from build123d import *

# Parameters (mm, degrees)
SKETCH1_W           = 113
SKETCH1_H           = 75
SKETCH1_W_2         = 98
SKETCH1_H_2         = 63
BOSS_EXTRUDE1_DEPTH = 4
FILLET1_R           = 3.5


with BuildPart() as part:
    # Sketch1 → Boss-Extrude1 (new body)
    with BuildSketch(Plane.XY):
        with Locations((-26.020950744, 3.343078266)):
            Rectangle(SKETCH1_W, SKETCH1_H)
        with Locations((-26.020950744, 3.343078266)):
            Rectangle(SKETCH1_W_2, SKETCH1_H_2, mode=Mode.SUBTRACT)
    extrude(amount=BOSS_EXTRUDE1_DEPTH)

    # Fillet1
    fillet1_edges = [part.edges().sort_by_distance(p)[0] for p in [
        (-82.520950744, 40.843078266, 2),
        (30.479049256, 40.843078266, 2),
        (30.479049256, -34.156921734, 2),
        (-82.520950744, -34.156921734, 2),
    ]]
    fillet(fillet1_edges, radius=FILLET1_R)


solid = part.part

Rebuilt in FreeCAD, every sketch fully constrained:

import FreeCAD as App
import Part
import Sketcher
from FreeCAD import Vector


def edges_at(feature, points):
    """Names of the edges that pass closest to the given points."""
    edges = feature.Shape.Edges
    near = lambda p: min(range(len(edges)), key=lambda i: edges[i].distToShape(Part.Vertex(*p))[0])
    return sorted({f"Edge{near(p) + 1}" for p in points})

doc = App.newDocument("Part")
body = doc.addObject("PartDesign::Body", "Body")

# Sketch on XY plane
sketch1 = body.newObject("Sketcher::SketchObject", "Sketch")
sketch1.AttachmentSupport = (doc.getObject("XY_Plane"), [""])
sketch1.MapMode = "FlatFace"
sketch1.addGeometry(Part.LineSegment(Vector(-82.520951, 40.843078, 0), Vector(-82.520951, -34.156922, 0)), False)
sketch1.addGeometry(Part.LineSegment(Vector(-82.520951, -34.156922, 0), Vector(30.479049, -34.156922, 0)), False)
sketch1.addGeometry(Part.LineSegment(Vector(30.479049, -34.156922, 0), Vector(30.479049, 40.843078, 0)), False)
sketch1.addGeometry(Part.LineSegment(Vector(30.479049, 40.843078, 0), Vector(-82.520951, 40.843078, 0)), False)
sketch1.addGeometry(Part.LineSegment(Vector(22.979049, -28.156922, 0), Vector(-75.020951, -28.156922, 0)), False)
sketch1.addGeometry(Part.LineSegment(Vector(-75.020951, -28.156922, 0), Vector(-75.020951, 34.843078, 0)), False)
sketch1.addGeometry(Part.LineSegment(Vector(-75.020951, 34.843078, 0), Vector(22.979049, 34.843078, 0)), False)
sketch1.addGeometry(Part.LineSegment(Vector(22.979049, 34.843078, 0), Vector(22.979049, -28.156922, 0)), False)
sketch1.addConstraint(Sketcher.Constraint("Coincident", 0, 2, 1, 1))
sketch1.addConstraint(Sketcher.Constraint("Coincident", 1, 2, 2, 1))
sketch1.addConstraint(Sketcher.Constraint("Coincident", 2, 2, 3, 1))
sketch1.addConstraint(Sketcher.Constraint("Coincident", 3, 2, 0, 1))
sketch1.addConstraint(Sketcher.Constraint("Coincident", 4, 2, 5, 1))
sketch1.addConstraint(Sketcher.Constraint("Coincident", 5, 2, 6, 1))
sketch1.addConstraint(Sketcher.Constraint("Coincident", 6, 2, 7, 1))
sketch1.addConstraint(Sketcher.Constraint("Coincident", 7, 2, 4, 1))
sketch1.addConstraint(Sketcher.Constraint("Vertical", 0))
sketch1.addConstraint(Sketcher.Constraint("Horizontal", 1))
sketch1.addConstraint(Sketcher.Constraint("Vertical", 2))
sketch1.addConstraint(Sketcher.Constraint("Horizontal", 3))
sketch1.addConstraint(Sketcher.Constraint("Horizontal", 4))
sketch1.addConstraint(Sketcher.Constraint("Vertical", 5))
sketch1.addConstraint(Sketcher.Constraint("Horizontal", 6))
sketch1.addConstraint(Sketcher.Constraint("Vertical", 7))
sketch1.addConstraint(Sketcher.Constraint("DistanceX", 1, 1, 1, 2, 113.0))
sketch1.addConstraint(Sketcher.Constraint("DistanceX", 4, 2, 4, 1, 98.0))
sketch1.addConstraint(Sketcher.Constraint("DistanceY", 0, 2, 0, 1, 75.0))
sketch1.addConstraint(Sketcher.Constraint("DistanceY", 5, 1, 5, 2, 63.0))
sketch1.addConstraint(Sketcher.Constraint("DistanceY", 0, 2, 4, 2, 6.0))
sketch1.addConstraint(Sketcher.Constraint("DistanceX", 0, 2, 4, 2, 7.5))
sketch1.addConstraint(Sketcher.Constraint("DistanceX", 0, 2, -1, 1, 82.520951))
sketch1.addConstraint(Sketcher.Constraint("DistanceY", 0, 2, -1, 1, 34.156922))
pad1 = body.newObject("PartDesign::Pad", "Pad")
pad1.Profile = sketch1
pad1.Length = 4
doc.recompute()

fillet = body.newObject("PartDesign::Fillet", "Fillet")
fillet.Base = (pad1, edges_at(pad1, [
    (-82.521, 40.843, 2),
    (30.479, 40.843, 2),
    (30.479, -34.157, 2),
    (-82.521, -34.157, 2),
]))
fillet.Radius = 3.5

doc.recompute()
